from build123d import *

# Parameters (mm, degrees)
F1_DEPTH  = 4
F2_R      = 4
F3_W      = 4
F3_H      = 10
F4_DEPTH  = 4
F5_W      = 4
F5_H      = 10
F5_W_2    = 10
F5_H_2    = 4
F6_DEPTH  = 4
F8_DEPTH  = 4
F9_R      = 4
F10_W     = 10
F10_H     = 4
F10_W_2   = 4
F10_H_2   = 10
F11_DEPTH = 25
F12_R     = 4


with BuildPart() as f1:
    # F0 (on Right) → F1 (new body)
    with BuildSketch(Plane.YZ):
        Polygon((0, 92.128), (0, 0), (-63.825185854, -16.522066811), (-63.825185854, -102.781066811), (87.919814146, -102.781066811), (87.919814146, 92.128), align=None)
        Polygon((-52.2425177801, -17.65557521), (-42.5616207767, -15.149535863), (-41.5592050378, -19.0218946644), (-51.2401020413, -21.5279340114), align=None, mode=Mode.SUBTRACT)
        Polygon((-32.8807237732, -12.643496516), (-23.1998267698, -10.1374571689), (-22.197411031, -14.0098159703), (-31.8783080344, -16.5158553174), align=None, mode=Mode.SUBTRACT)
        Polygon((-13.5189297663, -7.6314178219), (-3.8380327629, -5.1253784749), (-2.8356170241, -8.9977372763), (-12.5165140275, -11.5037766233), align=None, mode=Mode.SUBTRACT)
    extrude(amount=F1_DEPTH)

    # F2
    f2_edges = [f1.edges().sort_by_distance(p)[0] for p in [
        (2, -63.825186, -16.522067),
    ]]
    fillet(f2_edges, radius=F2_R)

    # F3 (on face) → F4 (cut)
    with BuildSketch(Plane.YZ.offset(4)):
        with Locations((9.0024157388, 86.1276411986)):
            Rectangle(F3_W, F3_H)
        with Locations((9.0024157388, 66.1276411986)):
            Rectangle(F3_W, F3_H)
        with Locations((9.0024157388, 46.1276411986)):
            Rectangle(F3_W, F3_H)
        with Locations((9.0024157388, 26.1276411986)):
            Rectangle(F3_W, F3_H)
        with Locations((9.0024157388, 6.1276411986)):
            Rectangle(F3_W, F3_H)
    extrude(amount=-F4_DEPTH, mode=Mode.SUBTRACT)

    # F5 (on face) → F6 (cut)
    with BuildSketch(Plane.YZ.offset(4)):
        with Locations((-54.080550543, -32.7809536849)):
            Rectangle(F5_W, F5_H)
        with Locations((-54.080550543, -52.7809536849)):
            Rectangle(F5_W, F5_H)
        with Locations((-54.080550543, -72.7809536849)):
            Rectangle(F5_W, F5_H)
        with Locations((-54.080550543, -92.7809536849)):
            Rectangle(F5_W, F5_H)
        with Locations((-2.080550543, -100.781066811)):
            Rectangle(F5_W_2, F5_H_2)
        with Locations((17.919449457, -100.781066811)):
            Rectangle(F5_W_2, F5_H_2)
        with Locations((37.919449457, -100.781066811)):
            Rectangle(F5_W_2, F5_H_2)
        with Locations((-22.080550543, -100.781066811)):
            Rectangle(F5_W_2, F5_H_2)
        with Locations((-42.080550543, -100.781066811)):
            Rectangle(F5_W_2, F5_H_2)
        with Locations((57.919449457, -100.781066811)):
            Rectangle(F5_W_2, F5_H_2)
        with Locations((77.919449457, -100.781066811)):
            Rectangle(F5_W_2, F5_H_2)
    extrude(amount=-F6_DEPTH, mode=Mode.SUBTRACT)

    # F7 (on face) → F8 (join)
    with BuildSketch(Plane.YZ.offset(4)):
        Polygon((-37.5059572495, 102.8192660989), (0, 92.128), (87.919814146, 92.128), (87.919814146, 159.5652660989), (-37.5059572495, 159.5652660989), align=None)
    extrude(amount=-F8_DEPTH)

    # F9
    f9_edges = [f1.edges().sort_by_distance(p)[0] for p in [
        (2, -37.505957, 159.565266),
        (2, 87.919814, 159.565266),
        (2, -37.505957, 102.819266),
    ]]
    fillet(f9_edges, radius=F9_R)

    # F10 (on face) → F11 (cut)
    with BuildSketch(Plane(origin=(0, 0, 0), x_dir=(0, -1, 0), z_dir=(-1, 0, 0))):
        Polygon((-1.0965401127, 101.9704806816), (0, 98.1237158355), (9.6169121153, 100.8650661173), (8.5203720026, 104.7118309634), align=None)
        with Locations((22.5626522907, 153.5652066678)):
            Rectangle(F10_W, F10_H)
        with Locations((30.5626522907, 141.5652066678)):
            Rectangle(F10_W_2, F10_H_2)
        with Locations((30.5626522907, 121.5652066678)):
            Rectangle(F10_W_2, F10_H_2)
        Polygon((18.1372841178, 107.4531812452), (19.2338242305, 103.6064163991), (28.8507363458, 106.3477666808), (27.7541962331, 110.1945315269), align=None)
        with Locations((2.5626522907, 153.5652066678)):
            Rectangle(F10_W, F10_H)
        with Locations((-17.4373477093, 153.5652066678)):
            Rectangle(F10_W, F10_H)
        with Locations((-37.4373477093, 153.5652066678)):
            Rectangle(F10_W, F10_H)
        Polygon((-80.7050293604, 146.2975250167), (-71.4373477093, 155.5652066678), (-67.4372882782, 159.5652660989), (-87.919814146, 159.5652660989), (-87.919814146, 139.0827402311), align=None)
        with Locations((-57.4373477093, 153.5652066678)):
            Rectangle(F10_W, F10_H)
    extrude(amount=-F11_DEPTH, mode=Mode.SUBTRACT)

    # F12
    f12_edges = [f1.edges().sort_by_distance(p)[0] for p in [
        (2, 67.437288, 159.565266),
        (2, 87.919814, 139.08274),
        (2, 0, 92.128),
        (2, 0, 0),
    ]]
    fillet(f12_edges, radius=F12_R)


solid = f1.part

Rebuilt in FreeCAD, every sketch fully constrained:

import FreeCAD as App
import Part
import Sketcher


def edges_at(feature, points):
    """Names of the edges that pass closest to the given points."""
    edges = feature.Shape.Edges
    near = lambda p: min(range(len(edges)), key=lambda i: edges[i].distToShape(Part.Vertex(*p))[0])
    return sorted({f"Edge{near(p) + 1}" for p in points})


def add_polygon(sketch, points):
    """Adds a closed chain of lines whose ends are joined by coincident constraints."""
    first, n = sketch.GeometryCount, len(points)
    for a, b in zip(points, points[1:] + points[:1]):
        sketch.addGeometry(Part.LineSegment(App.Vector(*a, 0), App.Vector(*b, 0)), False)
    for i in range(n):
        sketch.addConstraint(Sketcher.Constraint("Coincident", first + i, 2, first + (i + 1) % n, 1))

doc = App.newDocument("Part")
body = doc.addObject("PartDesign::Body", "Body")

sketch1 = doc.addObject("Sketcher::SketchObject", "Sketch")
body.addObject(sketch1)
sketch1.AttachmentSupport = (doc.YZ_Plane, [""])
sketch1.MapMode = "FlatFace"
add_polygon(sketch1, [(0, 92.128), (0, 0), (-63.825186, -16.522067), (-63.825186, -102.781067), (87.919814, -102.781067), (87.919814, 92.128)])
add_polygon(sketch1, [(-51.240102, -21.527934), (-52.242518, -17.655575), (-42.561621, -15.149536), (-41.559205, -19.021895)])
add_polygon(sketch1, [(-31.878308, -16.515855), (-32.880724, -12.643497), (-23.199827, -10.137457), (-22.197411, -14.009816)])
add_polygon(sketch1, [(-12.516514, -11.503777), (-13.51893, -7.631418), (-3.838033, -5.125378), (-2.835617, -8.997737)])
sketch1.addConstraint(Sketcher.Constraint("Vertical", 0))
sketch1.addConstraint(Sketcher.Constraint("Vertical", 2))
sketch1.addConstraint(Sketcher.Constraint("Horizontal", 3))
sketch1.addConstraint(Sketcher.Constraint("Vertical", 4))
sketch1.addConstraint(Sketcher.Constraint("Horizontal", 5))
sketch1.addConstraint(Sketcher.Constraint("Coincident", 0, 2, -1, 1))
sketch1.addConstraint(Sketcher.Constraint("Perpendicular", 1, 6))
sketch1.addConstraint(Sketcher.Constraint("Perpendicular", 6, 7))
sketch1.addConstraint(Sketcher.Constraint("Perpendicular", 7, 8))
sketch1.addConstraint(Sketcher.Constraint("Perpendicular", 8, 9))
sketch1.addConstraint(Sketcher.Constraint("Perpendicular", 9, 10))
sketch1.addConstraint(Sketcher.Constraint("Perpendicular", 10, 11))
sketch1.addConstraint(Sketcher.Constraint("Perpendicular", 11, 12))
sketch1.addConstraint(Sketcher.Constraint("Perpendicular", 12, 13))
sketch1.addConstraint(Sketcher.Constraint("Perpendicular", 13, 14))
sketch1.addConstraint(Sketcher.Constraint("Perpendicular", 14, 15))
sketch1.addConstraint(Sketcher.Constraint("Perpendicular", 15, 16))
sketch1.addConstraint(Sketcher.Constraint("Perpendicular", 16, 17))
sketch1.addConstraint(Sketcher.Constraint("Equal", 8, 10))
sketch1.addConstraint(Sketcher.Constraint("Equal", 9, 11))
sketch1.addConstraint(Sketcher.Constraint("Equal", 12, 14))
sketch1.addConstraint(Sketcher.Constraint("Equal", 13, 15))
sketch1.addConstraint(Sketcher.Constraint("Distance", 6, 4.0))
sketch1.addConstraint(Sketcher.Constraint("Distance", 7, 10.0))
sketch1.addConstraint(Sketcher.Constraint("DistanceX", 3, 1, 3, 2, 151.745))
sketch1.addConstraint(Sketcher.Constraint("DistanceY", 0, 2, 0, 1, 92.128))
sketch1.addConstraint(Sketcher.Constraint("DistanceY", 2, 2, 2, 1, 86.259))
sketch1.addConstraint(Sketcher.Constraint("Distance", 1, 65.929))
sketch1.addConstraint(Sketcher.Constraint("DistanceY", 9, 2, 7, 2, 6.378398))
sketch1.addConstraint(Sketcher.Constraint("DistanceY", 8, 2, 10, 2, 6.378398))
sketch1.addConstraint(Sketcher.Constraint("DistanceY", 12, 2, 14, 2, 6.378398))
sketch1.addConstraint(Sketcher.Constraint("DistanceX", 7, 2, -1, 1, 42.561621))
sketch1.addConstraint(Sketcher.Constraint("DistanceX", 12, 2, -1, 1, 22.197411))
sketch1.addConstraint(Sketcher.Constraint("DistanceX", 14, 2, -1, 1, 13.51893))
sketch1.addConstraint(Sketcher.Constraint("DistanceY", 15, 2, -1, 1, 5.125378))
pad1 = doc.addObject("PartDesign::Pad", "Pad")
body.addObject(pad1)
pad1.Profile = sketch1
pad1.Length = 4
doc.recompute()

fillet = doc.addObject("PartDesign::Fillet", "Fillet")
body.addObject(fillet)
fillet.Base = (pad1, edges_at(pad1, [(2, -63.825, -16.522)]))
fillet.Radius = 4

sketch2 = doc.addObject("Sketcher::SketchObject", "Sketch001")
body.addObject(sketch2)
sketch2.AttachmentSupport = (doc.YZ_Plane, [""])
sketch2.MapMode = "FlatFace"
sketch2.AttachmentOffset = App.Placement(App.Vector(0, 0, 4), App.Rotation())
add_polygon(sketch2, [(7.002416, 91.127641), (7.002416, 81.127641), (11.002416, 81.127641), (11.002416, 91.127641)])
add_polygon(sketch2, [(7.002416, 71.127641), (7.002416, 61.127641), (11.002416, 61.127641), (11.002416, 71.127641)])
add_polygon(sketch2, [(7.002416, 51.127641), (7.002416, 41.127641), (11.002416, 41.127641), (11.002416, 51.127641)])
add_polygon(sketch2, [(7.002416, 31.127641), (7.002416, 21.127641), (11.002416, 21.127641), (11.002416, 31.127641)])
add_polygon(sketch2, [(7.002416, 11.127641), (7.002416, 1.127641), (11.002416, 1.127641), (11.002416, 11.127641)])
sketch2.addConstraint(Sketcher.Constraint("Vertical", 0))
sketch2.addConstraint(Sketcher.Constraint("Horizontal", 1))
sketch2.addConstraint(Sketcher.Constraint("Vertical", 2))
sketch2.addConstraint(Sketcher.Constraint("Horizontal", 3))
sketch2.addConstraint(Sketcher.Constraint("Vertical", 4))
sketch2.addConstraint(Sketcher.Constraint("Horizontal", 5))
sketch2.addConstraint(Sketcher.Constraint("Vertical", 6))
sketch2.addConstraint(Sketcher.Constraint("Horizontal", 7))
sketch2.addConstraint(Sketcher.Constraint("Vertical", 8))
sketch2.addConstraint(Sketcher.Constraint("Horizontal", 9))
sketch2.addConstraint(Sketcher.Constraint("Vertical", 10))
sketch2.addConstraint(Sketcher.Constraint("Horizontal", 11))
sketch2.addConstraint(Sketcher.Constraint("Vertical", 12))
sketch2.addConstraint(Sketcher.Constraint("Horizontal", 13))
sketch2.addConstraint(Sketcher.Constraint("Vertical", 14))
sketch2.addConstraint(Sketcher.Constraint("Horizontal", 15))
sketch2.addConstraint(Sketcher.Constraint("Vertical", 16))
sketch2.addConstraint(Sketcher.Constraint("Horizontal", 17))
sketch2.addConstraint(Sketcher.Constraint("Vertical", 18))
sketch2.addConstraint(Sketcher.Constraint("Horizontal", 19))
sketch2.addConstraint(Sketcher.Constraint("Vertical", 3, 2, 4, 2))
sketch2.addConstraint(Sketcher.Constraint("Vertical", 2, 2, 5, 2))
sketch2.addConstraint(Sketcher.Constraint("Vertical", 7, 2, 8, 2))
sketch2.addConstraint(Sketcher.Constraint("Vertical", 6, 2, 9, 2))
sketch2.addConstraint(Sketcher.Constraint("Vertical", 11, 2, 12, 2))
sketch2.addConstraint(Sketcher.Constraint("Vertical", 10, 2, 13, 2))
sketch2.addConstraint(Sketcher.Constraint("Vertical", 15, 2, 16, 2))
sketch2.addConstraint(Sketcher.Constraint("Vertical", 14, 2, 17, 2))
sketch2.addConstraint(Sketcher.Constraint("Equal", 2, 4))
sketch2.addConstraint(Sketcher.Constraint("Equal", 6, 8))
sketch2.addConstraint(Sketcher.Constraint("Equal", 10, 12))
sketch2.addConstraint(Sketcher.Constraint("Equal", 14, 16))
sketch2.addConstraint(Sketcher.Constraint("DistanceX", 1, 1, 1, 2, 4.0))
sketch2.addConstraint(Sketcher.Constraint("DistanceY", 0, 2, 0, 1, 10.0))
sketch2.addConstraint(Sketcher.Constraint("DistanceY", 4, 2, 0, 2, 20.0))
sketch2.addConstraint(Sketcher.Constraint("DistanceY", 8, 2, 4, 2, 20.0))
sketch2.addConstraint(Sketcher.Constraint("DistanceY", 12, 2, 8, 2, 20.0))
sketch2.addConstraint(Sketcher.Constraint("DistanceY", 16, 2, 12, 2, 20.0))
sketch2.addConstraint(Sketcher.Constraint("DistanceY", -1, 1, 0, 2, 81.127641))
sketch2.addConstraint(Sketcher.Constraint("DistanceX", -1, 1, 0, 2, 7.002416))
pocket1 = doc.addObject("PartDesign::Pocket", "Pocket")
body.addObject(pocket1)
pocket1.Profile = sketch2
pocket1.Length = 4

sketch3 = doc.addObject("Sketcher::SketchObject", "Sketch002")
body.addObject(sketch3)
sketch3.AttachmentSupport = (doc.YZ_Plane, [""])
sketch3.MapMode = "FlatFace"
sketch3.AttachmentOffset = App.Placement(App.Vector(0, 0, 4), App.Rotation())
add_polygon(sketch3, [(-56.080551, -27.780954), (-56.080551, -37.780954), (-52.080551, -37.780954), (-52.080551, -27.780954)])
add_polygon(sketch3, [(-56.080551, -47.780954), (-56.080551, -57.780954), (-52.080551, -57.780954), (-52.080551, -47.780954)])
add_polygon(sketch3, [(-56.080551, -67.780954), (-56.080551, -77.780954), (-52.080551, -77.780954), (-52.080551, -67.780954)])
add_polygon(sketch3, [(-56.080551, -87.780954), (-56.080551, -97.780954), (-52.080551, -97.780954), (-52.080551, -87.780954)])
add_polygon(sketch3, [(-7.080551, -98.781067), (-7.080551, -102.781067), (2.919449, -102.781067), (2.919449, -98.781067)])
add_polygon(sketch3, [(12.919449, -98.781067), (12.919449, -102.781067), (22.919449, -102.781067), (22.919449, -98.781067)])
add_polygon(sketch3, [(32.919449, -98.781067), (32.919449, -102.781067), (42.919449, -102.781067), (42.919449, -98.781067)])
add_polygon(sketch3, [(-27.080551, -98.781067), (-27.080551, -102.781067), (-17.080551, -102.781067), (-17.080551, -98.781067)])
add_polygon(sketch3, [(-47.080551, -98.781067), (-47.080551, -102.781067), (-37.080551, -102.781067), (-37.080551, -98.781067)])
add_polygon(sketch3, [(52.919449, -98.781067), (52.919449, -102.781067), (62.919449, -102.781067), (62.919449, -98.781067)])
add_polygon(sketch3, [(72.919449, -98.781067), (72.919449, -102.781067), (82.919449, -102.781067), (82.919449, -98.781067)])
sketch3.addConstraint(Sketcher.Constraint("Vertical", 0))
sketch3.addConstraint(Sketcher.Constraint("Horizontal", 1))
sketch3.addConstraint(Sketcher.Constraint("Vertical", 2))
sketch3.addConstraint(Sketcher.Constraint("Horizontal", 3))
sketch3.addConstraint(Sketcher.Constraint("Vertical", 4))
sketch3.addConstraint(Sketcher.Constraint("Horizontal", 5))
sketch3.addConstraint(Sketcher.Constraint("Vertical", 6))
sketch3.addConstraint(Sketcher.Constraint("Horizontal", 7))
sketch3.addConstraint(Sketcher.Constraint("Vertical", 8))
sketch3.addConstraint(Sketcher.Constraint("Horizontal", 9))
sketch3.addConstraint(Sketcher.Constraint("Vertical", 10))
sketch3.addConstraint(Sketcher.Constraint("Horizontal", 11))
sketch3.addConstraint(Sketcher.Constraint("Vertical", 12))
sketch3.addConstraint(Sketcher.Constraint("Horizontal", 13))
sketch3.addConstraint(Sketcher.Constraint("Vertical", 14))
sketch3.addConstraint(Sketcher.Constraint("Horizontal", 15))
sketch3.addConstraint(Sketcher.Constraint("Vertical", 16))
sketch3.addConstraint(Sketcher.Constraint("Horizontal", 17))
sketch3.addConstraint(Sketcher.Constraint("Vertical", 18))
sketch3.addConstraint(Sketcher.Constraint("Horizontal", 19))
sketch3.addConstraint(Sketcher.Constraint("Vertical", 20))
sketch3.addConstraint(Sketcher.Constraint("Horizontal", 21))
sketch3.addConstraint(Sketcher.Constraint("Vertical", 22))
sketch3.addConstraint(Sketcher.Constraint("Horizontal", 23))
sketch3.addConstraint(Sketcher.Constraint("Vertical", 24))
sketch3.addConstraint(Sketcher.Constraint("Horizontal", 25))
sketch3.addConstraint(Sketcher.Constraint("Vertical", 26))
sketch3.addConstraint(Sketcher.Constraint("Horizontal", 27))
sketch3.addConstraint(Sketcher.Constraint("Vertical", 28))
sketch3.addConstraint(Sketcher.Constraint("Horizontal", 29))
sketch3.addConstraint(Sketcher.Constraint("Vertical", 30))
sketch3.addConstraint(Sketcher.Constraint("Horizontal", 31))
sketch3.addConstraint(Sketcher.Constraint("Vertical", 32))
sketch3.addConstraint(Sketcher.Constraint("Horizontal", 33))
sketch3.addConstraint(Sketcher.Constraint("Vertical", 34))
sketch3.addConstraint(Sketcher.Constraint("Horizontal", 35))
sketch3.addConstraint(Sketcher.Constraint("Vertical", 36))
sketch3.addConstraint(Sketcher.Constraint("Horizontal", 37))
sketch3.addConstraint(Sketcher.Constraint("Vertical", 38))
sketch3.addConstraint(Sketcher.Constraint("Horizontal", 39))
sketch3.addConstraint(Sketcher.Constraint("Vertical", 40))
sketch3.addConstraint(Sketcher.Constraint("Horizontal", 41))
sketch3.addConstraint(Sketcher.Constraint("Vertical", 42))
sketch3.addConstraint(Sketcher.Constraint("Horizontal", 43))
sketch3.addConstraint(Sketcher.Constraint("Horizontal", 17, 2, 20, 2))
sketch3.addConstraint(Sketcher.Constraint("Horizontal", 19, 2, 22, 2))
sketch3.addConstraint(Sketcher.Constraint("Horizontal", 21, 2, 24, 2))
sketch3.addConstraint(Sketcher.Constraint("Horizontal", 23, 2, 26, 2))
sketch3.addConstraint(Sketcher.Constraint("Horizontal", 25, 2, 28, 2))
sketch3.addConstraint(Sketcher.Constraint("Horizontal", 27, 2, 30, 2))
sketch3.addConstraint(Sketcher.Constraint("Horizontal", 29, 2, 32, 2))
sketch3.addConstraint(Sketcher.Constraint("Horizontal", 31, 2, 34, 2))
sketch3.addConstraint(Sketcher.Constraint("Horizontal", 33, 2, 36, 2))
sketch3.addConstraint(Sketcher.Constraint("Horizontal", 35, 2, 38, 2))
sketch3.addConstraint(Sketcher.Constraint("Horizontal", 37, 2, 40, 2))
sketch3.addConstraint(Sketcher.Constraint("Horizontal", 39, 2, 42, 2))
sketch3.addConstraint(Sketcher.Constraint("Vertical", 3, 2, 4, 2))
sketch3.addConstraint(Sketcher.Constraint("Vertical", 2, 2, 5, 2))
sketch3.addConstraint(Sketcher.Constraint("Vertical", 7, 2, 8, 2))
sketch3.addConstraint(Sketcher.Constraint("Vertical", 6, 2, 9, 2))
sketch3.addConstraint(Sketcher.Constraint("Vertical", 11, 2, 12, 2))
sketch3.addConstraint(Sketcher.Constraint("Vertical", 10, 2, 13, 2))
sketch3.addConstraint(Sketcher.Constraint("Equal", 19, 21))
sketch3.addConstraint(Sketcher.Constraint("Equal", 23, 25))
sketch3.addConstraint(Sketcher.Constraint("Equal", 27, 29))
sketch3.addConstraint(Sketcher.Constraint("Equal", 31, 33))
sketch3.addConstraint(Sketcher.Constraint("Equal", 35, 37))
sketch3.addConstraint(Sketcher.Constraint("Equal", 39, 41))
sketch3.addConstraint(Sketcher.Constraint("Equal", 43, 0))
sketch3.addConstraint(Sketcher.Constraint("Equal", 2, 4))
sketch3.addConstraint(Sketcher.Constraint("Equal", 6, 8))
sketch3.addConstraint(Sketcher.Constraint("Equal", 10, 12))
sketch3.addConstraint(Sketcher.Constraint("Equal", 15, 16))
sketch3.addConstraint(Sketcher.Constraint("DistanceX", 1, 1, 1, 2, 4.0))
sketch3.addConstraint(Sketcher.Constraint("DistanceX", 17, 1, 17, 2, 10.0))
sketch3.addConstraint(Sketcher.Constraint("DistanceY", 4, 2, 0, 2, 20.0))
sketch3.addConstraint(Sketcher.Constraint("DistanceY", 8, 2, 4, 2, 20.0))
sketch3.addConstraint(Sketcher.Constraint("DistanceY", 12, 2, 8, 2, 20.0))
sketch3.addConstraint(Sketcher.Constraint("DistanceX", 13, 2, 16, 2, 45.0))
sketch3.addConstraint(Sketcher.Constraint("DistanceX", 17, 2, 20, 2, 10.0))
sketch3.addConstraint(Sketcher.Constraint("DistanceX", 21, 2, 24, 2, 10.0))
sketch3.addConstraint(Sketcher.Constraint("DistanceX", 28, 2, 16, 2, 20.0))
sketch3.addConstraint(Sketcher.Constraint("DistanceX", 13, 2, 32, 2, 5.0))
sketch3.addConstraint(Sketcher.Constraint("DistanceX", 25, 2, 36, 2, 10.0))
sketch3.addConstraint(Sketcher.Constraint("DistanceX", 37, 2, 40, 2, 10.0))
sketch3.addConstraint(Sketcher.Constraint("DistanceX", 0, 2, -1, 1, 56.080551))
sketch3.addConstraint(Sketcher.Constraint("DistanceY", 0, 2, -1, 1, 37.780954))
sketch3.addConstraint(Sketcher.Constraint("DistanceY", 16, 2, -1, 1, 102.781067))
pocket2 = doc.addObject("PartDesign::Pocket", "Pocket001")
body.addObject(pocket2)
pocket2.Profile = sketch3
pocket2.Length = 4

sketch4 = doc.addObject("Sketcher::SketchObject", "Sketch003")
body.addObject(sketch4)
sketch4.AttachmentSupport = (doc.YZ_Plane, [""])
sketch4.MapMode = "FlatFace"
sketch4.AttachmentOffset = App.Placement(App.Vector(0, 0, 4), App.Rotation())
add_polygon(sketch4, [(-37.505957, 102.819266), (0, 92.128), (87.919814, 92.128), (87.919814, 159.565266), (-37.505957, 159.565266)])
sketch4.addConstraint(Sketcher.Constraint("Horizontal", 1))
sketch4.addConstraint(Sketcher.Constraint("Vertical", 2))
sketch4.addConstraint(Sketcher.Constraint("Horizontal", 3))
sketch4.addConstraint(Sketcher.Constraint("Vertical", 4))
sketch4.addConstraint(Sketcher.Constraint("PointOnObject", 0, 2, -2))
sketch4.addConstraint(Sketcher.Constraint("Distance", 0, 39.0))
sketch4.addConstraint(Sketcher.Constraint("DistanceY", 4, 2, 4, 1, 56.746))
sketch4.addConstraint(Sketcher.Constraint("DistanceY", -1, 1, 0, 2, 92.128))
sketch4.addConstraint(Sketcher.Constraint("DistanceX", 3, 2, 3, 1, 125.425771))
sketch4.addConstraint(Sketcher.Constraint("DistanceX", 1, 1, 1, 2, 87.919814))
pad2 = doc.addObject("PartDesign::Pad", "Pad001")
body.addObject(pad2)
pad2.Profile = sketch4
pad2.Length = 4
pad2.Reversed = True
doc.recompute()

fillet2 = doc.addObject("PartDesign::Fillet", "Fillet001")
body.addObject(fillet2)
fillet2.Base = (pad2, edges_at(pad2, [(2, -37.506, 159.565), (2, 87.92, 159.565), (2, -37.506, 102.819)]))
fillet2.Radius = 4

sketch5 = doc.addObject("Sketcher::SketchObject", "Sketch004")
body.addObject(sketch5)
sketch5.AttachmentSupport = (doc.YZ_Plane, [""])
sketch5.MapMode = "FlatFace"
add_polygon(sketch5, [(1.09654, 101.970481), (0, 98.123716), (-9.616912, 100.865066), (-8.520372, 104.711831)])
add_polygon(sketch5, [(-17.562652, 155.565207), (-17.562652, 151.565207), (-27.562652, 151.565207), (-27.562652, 155.565207)])
add_polygon(sketch5, [(-28.562652, 146.565207), (-28.562652, 136.565207), (-32.562652, 136.565207), (-32.562652, 146.565207)])
add_polygon(sketch5, [(-28.562652, 126.565207), (-28.562652, 116.565207), (-32.562652, 116.565207), (-32.562652, 126.565207)])
add_polygon(sketch5, [(-18.137284, 107.453181), (-19.233824, 103.606416), (-28.850736, 106.347767), (-27.754196, 110.194532)])
add_polygon(sketch5, [(2.437348, 155.565207), (2.437348, 151.565207), (-7.562652, 151.565207), (-7.562652, 155.565207)])
add_polygon(sketch5, [(22.437348, 155.565207), (22.437348, 151.565207), (12.437348, 151.565207), (12.437348, 155.565207)])
add_polygon(sketch5, [(42.437348, 155.565207), (42.437348, 151.565207), (32.437348, 151.565207), (32.437348, 155.565207)])
add_polygon(sketch5, [(67.437288, 159.565266), (87.919814, 159.565266), (87.919814, 139.08274)])
add_polygon(sketch5, [(62.437348, 155.565207), (62.437348, 151.565207), (52.437348, 151.565207), (52.437348, 155.565207)])
sketch5.addConstraint(Sketcher.Constraint("Vertical", 4))
sketch5.addConstraint(Sketcher.Constraint("Horizontal", 5))
sketch5.addConstraint(Sketcher.Constraint("Vertical", 6))
sketch5.addConstraint(Sketcher.Constraint("Horizontal", 7))
sketch5.addConstraint(Sketcher.Constraint("Vertical", 8))
sketch5.addConstraint(Sketcher.Constraint("Horizontal", 9))
sketch5.addConstraint(Sketcher.Constraint("Vertical", 10))
sketch5.addConstraint(Sketcher.Constraint("Horizontal", 11))
sketch5.addConstraint(Sketcher.Constraint("Vertical", 12))
sketch5.addConstraint(Sketcher.Constraint("Horizontal", 13))
sketch5.addConstraint(Sketcher.Constraint("Vertical", 14))
sketch5.addConstraint(Sketcher.Constraint("Horizontal", 15))
sketch5.addConstraint(Sketcher.Constraint("Vertical", 20))
sketch5.addConstraint(Sketcher.Constraint("Horizontal", 21))
sketch5.addConstraint(Sketcher.Constraint("Vertical", 22))
sketch5.addConstraint(Sketcher.Constraint("Horizontal", 23))
sketch5.addConstraint(Sketcher.Constraint("Vertical", 24))
sketch5.addConstraint(Sketcher.Constraint("Horizontal", 25))
sketch5.addConstraint(Sketcher.Constraint("Vertical", 26))
sketch5.addConstraint(Sketcher.Constraint("Horizontal", 27))
sketch5.addConstraint(Sketcher.Constraint("Vertical", 28))
sketch5.addConstraint(Sketcher.Constraint("Horizontal", 29))
sketch5.addConstraint(Sketcher.Constraint("Vertical", 30))
sketch5.addConstraint(Sketcher.Constraint("Horizontal", 31))
sketch5.addConstraint(Sketcher.Constraint("Horizontal", 32))
sketch5.addConstraint(Sketcher.Constraint("Vertical", 33))
sketch5.addConstraint(Sketcher.Constraint("Vertical", 35))
sketch5.addConstraint(Sketcher.Constraint("Horizontal", 36))
sketch5.addConstraint(Sketcher.Constraint("Vertical", 37))
sketch5.addConstraint(Sketcher.Constraint("Horizontal", 38))
sketch5.addConstraint(Sketcher.Constraint("PointOnObject", 0, 2, -2))
sketch5.addConstraint(Sketcher.Constraint("Perpendicular", 0, 1))
sketch5.addConstraint(Sketcher.Constraint("Perpendicular", 1, 2))
sketch5.addConstraint(Sketcher.Constraint("Perpendicular", 2, 3))
sketch5.addConstraint(Sketcher.Constraint("Perpendicular", 3, 16))
sketch5.addConstraint(Sketcher.Constraint("Perpendicular", 16, 17))
sketch5.addConstraint(Sketcher.Constraint("Perpendicular", 17, 18))
sketch5.addConstraint(Sketcher.Constraint("Perpendicular", 18, 19))
sketch5.addConstraint(Sketcher.Constraint("Horizontal", 5, 2, 20, 2))
sketch5.addConstraint(Sketcher.Constraint("Horizontal", 7, 2, 22, 2))
sketch5.addConstraint(Sketcher.Constraint("Horizontal", 21, 2, 24, 2))
sketch5.addConstraint(Sketcher.Constraint("Horizontal", 23, 2, 26, 2))
sketch5.addConstraint(Sketcher.Constraint("Horizontal", 25, 2, 28, 2))
sketch5.addConstraint(Sketcher.Constraint("Horizontal", 27, 2, 30, 2))
sketch5.addConstraint(Sketcher.Constraint("Horizontal", 29, 2, 35, 2))
sketch5.addConstraint(Sketcher.Constraint("Horizontal", 31, 2, 37, 2))
sketch5.addConstraint(Sketcher.Constraint("Vertical", 11, 2, 12, 2))
sketch5.addConstraint(Sketcher.Constraint("Vertical", 10, 2, 13, 2))
sketch5.addConstraint(Sketcher.Constraint("Equal", 7, 21))
sketch5.addConstraint(Sketcher.Constraint("Equal", 23, 25))
sketch5.addConstraint(Sketcher.Constraint("Equal", 27, 29))
sketch5.addConstraint(Sketcher.Constraint("Equal", 31, 36))
sketch5.addConstraint(Sketcher.Constraint("Equal", 15, 4))
sketch5.addConstraint(Sketcher.Constraint("Equal", 38, 8))
sketch5.addConstraint(Sketcher.Constraint("Equal", 10, 12))
sketch5.addConstraint(Sketcher.Constraint("Equal", 32, 33))
sketch5.addConstraint(Sketcher.Constraint("Equal", 2, 16))
sketch5.addConstraint(Sketcher.Constraint("Equal", 3, 17))
sketch5.addConstraint(Sketcher.Constraint("DistanceX", 5, 2, 5, 1, 10.0))
sketch5.addConstraint(Sketcher.Constraint("DistanceX", 9, 2, 9, 1, 4.0))
sketch5.addConstraint(Sketcher.Constraint("Distance", 0, 4.0))
sketch5.addConstraint(Sketcher.Constraint("Distance", 1, 10.0))
sketch5.addConstraint(Sketcher.Constraint("DistanceX", 8, 2, 5, 2, 1.0))
sketch5.addConstraint(Sketcher.Constraint("DistanceY", 8, 2, 5, 2, 15.0))
sketch5.addConstraint(Sketcher.Constraint("DistanceY", 12, 2, 8, 2, 20.0))
sketch5.addConstraint(Sketcher.Constraint("DistanceX", 4, 2, 20, 2, 20.0))
sketch5.addConstraint(Sketcher.Constraint("DistanceX", 20, 2, 24, 2, 20.0))
sketch5.addConstraint(Sketcher.Constraint("DistanceX", 24, 2, 28, 2, 20.0))
sketch5.addConstraint(Sketcher.Constraint("DistanceX", 28, 2, 35, 2, 20.0))
sketch5.addConstraint(Sketcher.Constraint("DistanceY", 0, 2, 16, 2, 5.482701))
sketch5.addConstraint(Sketcher.Constraint("DistanceX", 32, 1, 32, 2, 20.482526))
sketch5.addConstraint(Sketcher.Constraint("DistanceY", -1, 1, 2, 2, 104.711831))
sketch5.addConstraint(Sketcher.Constraint("DistanceX", -1, 1, 3, 2, 1.09654))
sketch5.addConstraint(Sketcher.Constraint("DistanceY", -1, 1, 33, 2, 139.08274))
sketch5.addConstraint(Sketcher.Constraint("DistanceX", -1, 1, 34, 2, 67.437288))
sketch5.addConstraint(Sketcher.Constraint("DistanceX", 4, 2, 2, 2, 9.04228))
sketch5.addConstraint(Sketcher.Constraint("DistanceY", 1, 2, 4, 2, 50.700141))
sketch5.addConstraint(Sketcher.Constraint("DistanceX", 12, 2, 16, 2, 9.328828))
pocket3 = doc.addObject("PartDesign::Pocket", "Pocket002")
body.addObject(pocket3)
pocket3.Profile = sketch5
pocket3.Length = 25
pocket3.Reversed = True
doc.recompute()

fillet3 = doc.addObject("PartDesign::Fillet", "Fillet002")
body.addObject(fillet3)
fillet3.Base = (pocket3, edges_at(pocket3, [
    (2, 67.437, 159.565),
    (2, 87.92, 139.083),
    (2, 0, 92.128),
    (2, 0, 0),
]))
fillet3.Radius = 4

doc.recompute()
